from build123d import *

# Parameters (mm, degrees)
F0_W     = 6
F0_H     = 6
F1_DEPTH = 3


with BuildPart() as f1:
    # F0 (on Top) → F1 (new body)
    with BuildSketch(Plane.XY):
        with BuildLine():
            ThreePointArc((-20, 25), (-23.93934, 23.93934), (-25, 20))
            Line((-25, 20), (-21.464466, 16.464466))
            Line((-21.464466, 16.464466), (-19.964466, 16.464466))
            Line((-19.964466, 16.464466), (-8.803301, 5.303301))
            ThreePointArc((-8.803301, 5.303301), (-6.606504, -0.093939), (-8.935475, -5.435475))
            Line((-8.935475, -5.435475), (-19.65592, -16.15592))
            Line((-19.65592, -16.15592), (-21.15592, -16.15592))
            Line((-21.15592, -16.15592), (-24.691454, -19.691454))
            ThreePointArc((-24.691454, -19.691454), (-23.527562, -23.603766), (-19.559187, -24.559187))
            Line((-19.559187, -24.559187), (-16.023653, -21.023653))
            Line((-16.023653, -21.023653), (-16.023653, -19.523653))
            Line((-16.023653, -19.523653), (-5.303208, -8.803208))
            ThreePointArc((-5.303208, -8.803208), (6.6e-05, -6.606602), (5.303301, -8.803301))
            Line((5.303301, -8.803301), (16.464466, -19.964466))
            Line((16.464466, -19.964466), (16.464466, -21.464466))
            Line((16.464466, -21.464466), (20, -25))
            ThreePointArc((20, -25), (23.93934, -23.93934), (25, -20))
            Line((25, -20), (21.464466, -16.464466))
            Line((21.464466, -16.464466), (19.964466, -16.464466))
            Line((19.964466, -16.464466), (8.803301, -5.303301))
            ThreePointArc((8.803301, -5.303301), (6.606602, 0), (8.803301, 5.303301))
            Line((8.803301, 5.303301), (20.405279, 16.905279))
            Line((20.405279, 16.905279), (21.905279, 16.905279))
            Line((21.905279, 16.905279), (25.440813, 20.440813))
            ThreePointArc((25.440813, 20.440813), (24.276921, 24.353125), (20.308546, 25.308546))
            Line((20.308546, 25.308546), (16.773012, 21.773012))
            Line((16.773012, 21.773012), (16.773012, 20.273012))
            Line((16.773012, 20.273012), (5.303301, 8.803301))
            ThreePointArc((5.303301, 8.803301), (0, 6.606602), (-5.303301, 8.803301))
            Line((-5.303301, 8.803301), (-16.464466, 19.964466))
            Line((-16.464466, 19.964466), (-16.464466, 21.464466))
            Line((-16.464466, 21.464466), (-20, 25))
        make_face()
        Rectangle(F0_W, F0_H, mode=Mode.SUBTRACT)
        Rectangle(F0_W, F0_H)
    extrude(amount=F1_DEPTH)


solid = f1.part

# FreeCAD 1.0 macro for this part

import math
import FreeCAD as App
import Part
import Sketcher
Q = App.Units.Quantity

doc = App.newDocument("Part")
body = doc.addObject("PartDesign::Body", "Body")

# Sketch on XY plane
sketch1 = doc.addObject("Sketcher::SketchObject", "Sketch")
body.addObject(sketch1)
sketch1.AttachmentSupport = (doc.XY_Plane, [""])
sketch1.MapMode = "FlatFace"
sketch1.addGeometry([
    Part.ArcOfCircle(Part.Circle(App.Vector(-21, 21, 0), App.Vector(0, 0, 1), 4.1), math.radians(75), math.radians(195)),  # 0
    Part.LineSegment(App.Vector(-25, 20, 0), App.Vector(-21.5, 16.5, 0)),  # 1
    Part.LineSegment(App.Vector(-21.5, 16.5, 0), App.Vector(-20, 16.5, 0)),  # 2
    Part.LineSegment(App.Vector(-20, 16.5, 0), App.Vector(-8.8, 5.3, 0)),  # 3
    Part.ArcOfCircle(Part.Circle(App.Vector(-14.1, 0, 0), App.Vector(0, 0, 1), 7.5), math.radians(-46), math.radians(45)),  # 4
    Part.LineSegment(App.Vector(-8.9, -5.4, 0), App.Vector(-19.7, -16.2, 0)),  # 5
    Part.LineSegment(App.Vector(-19.7, -16.2, 0), App.Vector(-21.2, -16.2, 0)),  # 6
    Part.LineSegment(App.Vector(-21.2, -16.2, 0), App.Vector(-24.7, -19.7, 0)),  # 7
    Part.ArcOfCircle(Part.Circle(App.Vector(-20.7, -20.6, 0), App.Vector(0, 0, 1), 4.1), math.radians(167), math.radians(286)),  # 8
    Part.LineSegment(App.Vector(-19.6, -24.6, 0), App.Vector(-16, -21, 0)),  # 9
    Part.LineSegment(App.Vector(-16, -21, 0), App.Vector(-16, -19.5, 0)),  # 10
    Part.LineSegment(App.Vector(-16, -19.5, 0), App.Vector(-5.3, -8.8, 0)),  # 11
    Part.ArcOfCircle(Part.Circle(App.Vector(0, -14.1, 0), App.Vector(0, 0, 1), 7.5), math.radians(45), math.radians(135)),  # 12
    Part.LineSegment(App.Vector(5.3, -8.8, 0), App.Vector(16.5, -20, 0)),  # 13
    Part.LineSegment(App.Vector(16.5, -20, 0), App.Vector(16.5, -21.5, 0)),  # 14
    Part.LineSegment(App.Vector(16.5, -21.5, 0), App.Vector(20, -25, 0)),  # 15
    Part.ArcOfCircle(Part.Circle(App.Vector(21, -21, 0), App.Vector(0, 0, 1), 4.1), math.radians(-105), math.radians(15)),  # 16
    Part.LineSegment(App.Vector(25, -20, 0), App.Vector(21.5, -16.5, 0)),  # 17
    Part.LineSegment(App.Vector(21.5, -16.5, 0), App.Vector(20, -16.5, 0)),  # 18
    Part.LineSegment(App.Vector(20, -16.5, 0), App.Vector(8.8, -5.3, 0)),  # 19
    Part.ArcOfCircle(Part.Circle(App.Vector(14.1, 0, 0), App.Vector(0, 0, 1), 7.5), math.radians(135), math.radians(225)),  # 20
    Part.LineSegment(App.Vector(8.8, 5.3, 0), App.Vector(20.4, 16.9, 0)),  # 21
    Part.LineSegment(App.Vector(20.4, 16.9, 0), App.Vector(21.9, 16.9, 0)),  # 22
    Part.LineSegment(App.Vector(21.9, 16.9, 0), App.Vector(25.4, 20.4, 0)),  # 23
    Part.ArcOfCircle(Part.Circle(App.Vector(21.5, 21.4, 0), App.Vector(0, 0, 1), 4.1), math.radians(-13), math.radians(106)),  # 24
    Part.LineSegment(App.Vector(20.3, 25.3, 0), App.Vector(16.8, 21.8, 0)),  # 25
    Part.LineSegment(App.Vector(16.8, 21.8, 0), App.Vector(16.8, 20.3, 0)),  # 26
    Part.LineSegment(App.Vector(16.8, 20.3, 0), App.Vector(5.3, 8.8, 0)),  # 27
    Part.ArcOfCircle(Part.Circle(App.Vector(0, 14.1, 0), App.Vector(0, 0, 1), 7.5), math.radians(-135), math.radians(-45)),  # 28
    Part.LineSegment(App.Vector(-5.3, 8.8, 0), App.Vector(-16.5, 20, 0)),  # 29
    Part.LineSegment(App.Vector(-16.5, 20, 0), App.Vector(-16.5, 21.5, 0)),  # 30
    Part.LineSegment(App.Vector(-16.5, 21.5, 0), App.Vector(-20, 25, 0)),  # 31
], False)
sketch1.addConstraint([
    Sketcher.Constraint("Coincident", 0, 2, 1, 1),
    Sketcher.Constraint("Coincident", 1, 2, 2, 1),
    Sketcher.Constraint("Coincident", 2, 2, 3, 1),
    Sketcher.Constraint("Tangent", 3, 2, 4, 2),
    Sketcher.Constraint("Coincident", 4, 1, 5, 1),
    Sketcher.Constraint("Coincident", 5, 2, 6, 1),
    Sketcher.Constraint("Coincident", 6, 2, 7, 1),
    Sketcher.Constraint("Coincident", 7, 2, 8, 1),
    Sketcher.Constraint("Coincident", 8, 2, 9, 1),
    Sketcher.Constraint("Coincident", 9, 2, 10, 1),
    Sketcher.Constraint("Coincident", 10, 2, 11, 1),
    Sketcher.Constraint("Coincident", 11, 2, 12, 2),
    Sketcher.Constraint("Tangent", 12, 1, 13, 1),
    Sketcher.Constraint("Coincident", 13, 2, 14, 1),
    Sketcher.Constraint("Coincident", 14, 2, 15, 1),
    Sketcher.Constraint("Coincident", 15, 2, 16, 1),
    Sketcher.Constraint("Coincident", 16, 2, 17, 1),
    Sketcher.Constraint("Coincident", 17, 2, 18, 1),
    Sketcher.Constraint("Coincident", 18, 2, 19, 1),
    Sketcher.Constraint("Tangent", 19, 2, 20, 2),
    Sketcher.Constraint("Tangent", 20, 1, 21, 1),
    Sketcher.Constraint("Coincident", 21, 2, 22, 1),
    Sketcher.Constraint("Coincident", 22, 2, 23, 1),
    Sketcher.Constraint("Coincident", 23, 2, 24, 1),
    Sketcher.Constraint("Coincident", 24, 2, 25, 1),
    Sketcher.Constraint("Coincident", 25, 2, 26, 1),
    Sketcher.Constraint("Coincident", 26, 2, 27, 1),
    Sketcher.Constraint("Tangent", 27, 2, 28, 2),
    Sketcher.Constraint("Tangent", 28, 1, 29, 1),
    Sketcher.Constraint("Coincident", 29, 2, 30, 1),
    Sketcher.Constraint("Coincident", 30, 2, 31, 1),
    Sketcher.Constraint("Coincident", 31, 2, 0, 1),
    Sketcher.Constraint("Horizontal", 2),
    Sketcher.Constraint("Horizontal", 6),
    Sketcher.Constraint("Vertical", 10),
    Sketcher.Constraint("Vertical", 14),
    Sketcher.Constraint("Horizontal", 18),
    Sketcher.Constraint("Horizontal", 22),
    Sketcher.Constraint("Vertical", 26),
    Sketcher.Constraint("Vertical", 30),
    Sketcher.Constraint("Equal", 0, 8),
    Sketcher.Constraint("Equal", 8, 16),
    Sketcher.Constraint("Equal", 12, 20),
    Sketcher.Constraint("Equal", 16, 24),
    Sketcher.Constraint("Equal", 20, 28),
    Sketcher.Constraint("Symmetric", 0, 3, 16, 3, -1, 1),
    Sketcher.Constraint("Symmetric", 12, 3, 28, 3, -1, 1),
    Sketcher.Constraint("Symmetric", 1, 2, 17, 2, -1, 1),
    Sketcher.Constraint("Symmetric", 3, 2, 19, 2, -1, 1),
    Sketcher.Constraint("Symmetric", 13, 2, 29, 2, -1, 1),
    Sketcher.Constraint("Symmetric", 3, 2, 20, 1, -2),
    Sketcher.Constraint("Symmetric", 27, 2, 28, 1, -2),
    Sketcher.Constraint("Parallel", 1, 3),
    Sketcher.Constraint("Perpendicular", 3, 5),
    Sketcher.Constraint("Parallel", 5, 7),
    Sketcher.Constraint("Parallel", 7, 9),
    Sketcher.Constraint("Parallel", 9, 11),
    Sketcher.Constraint("Perpendicular", 11, 13),
    Sketcher.Constraint("Parallel", 13, 15),
    Sketcher.Constraint("Parallel", 15, 17),
    Sketcher.Constraint("Parallel", 17, 19),
    Sketcher.Constraint("Perpendicular", 19, 21),
    Sketcher.Constraint("Parallel", 21, 23),
    Sketcher.Constraint("Parallel", 23, 25),
    Sketcher.Constraint("Parallel", 29, 31),
    Sketcher.Constraint("Equal", 2, 6),
    Sketcher.Constraint("Equal", 18, 22),
    Sketcher.Constraint("Equal", 22, 10),
    Sketcher.Constraint("Equal", 10, 14),
    Sketcher.Constraint("Equal", 14, 26),
    Sketcher.Constraint("Equal", 26, 30),
    Sketcher.Constraint("Equal", 1, 7),
    Sketcher.Constraint("Equal", 7, 9),
    Sketcher.Constraint("Equal", 5, 11),
    Sketcher.Constraint("Equal", 3, 13),
    Sketcher.Constraint("Equal", 9, 15),
    Sketcher.Constraint("Equal", 17, 23),
    Sketcher.Constraint("Equal", 23, 25),
    Sketcher.Constraint("Radius", 12, Q("7.500001 mm")),
    Sketcher.Constraint("Distance", 1, Q("5 mm")),
    Sketcher.Constraint("DistanceX", 2, 1, 2, 2, Q("1.5 mm")),
    Sketcher.Constraint("DistanceX", 0, 2, -1, 1, Q("25 mm")),
    Sketcher.Constraint("DistanceY", -1, 1, 0, 2, Q("20 mm")),
    Sketcher.Constraint("DistanceY", 15, 2, -1, 1, Q("25 mm")),
    Sketcher.Constraint("Distance", 5, Q("15.160999 mm")),
    Sketcher.Constraint("Radius", 0, Q("4.088214 mm")),
    Sketcher.Constraint("Radius", 4, Q("7.502272 mm")),
    Sketcher.Constraint("DistanceX", 4, 3, 11, 2, Q("8.805 mm")),
    Sketcher.Constraint("DistanceX", 7, 2, 9, 2, Q("8.667801 mm")),
    Sketcher.Constraint("DistanceX", 25, 2, 23, 2, Q("8.667801 mm")),
    Sketcher.Constraint("Distance", 27, Q("16.220621 mm")),
])
pad1 = doc.addObject("PartDesign::Pad", "Pad")
body.addObject(pad1)
pad1.Profile = sketch1
pad1.Length = 3

doc.recompute()
